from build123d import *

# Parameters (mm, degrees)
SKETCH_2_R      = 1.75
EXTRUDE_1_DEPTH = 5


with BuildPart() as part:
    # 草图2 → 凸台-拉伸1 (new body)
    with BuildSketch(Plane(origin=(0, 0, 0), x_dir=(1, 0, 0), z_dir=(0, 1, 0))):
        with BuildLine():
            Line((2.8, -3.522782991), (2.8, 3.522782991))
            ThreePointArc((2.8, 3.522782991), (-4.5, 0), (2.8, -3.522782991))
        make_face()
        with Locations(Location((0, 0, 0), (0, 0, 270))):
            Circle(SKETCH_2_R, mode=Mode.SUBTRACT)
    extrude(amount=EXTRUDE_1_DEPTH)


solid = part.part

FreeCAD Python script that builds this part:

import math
import FreeCAD as App
import Part
import Sketcher
Q = App.Units.Quantity

doc = App.newDocument("Part")
params = doc.addObject("Spreadsheet::Sheet", "Params")
for row, (alias, value) in enumerate([
    ("sketch1_diameter", "3.5 mm"),
    ("sketch1_radius", "4.5 mm"),
    ("pad1_length", "5 mm"),
], start=1):
    params.set(f"A{row}", alias)
    params.set(f"B{row}", "=" + value)
    params.setAlias(f"B{row}", alias)

body = doc.addObject("PartDesign::Body", "Body")

# Sketch on XZ plane
sketch1 = doc.addObject("Sketcher::SketchObject", "Sketch")
body.addObject(sketch1)
sketch1.AttachmentSupport = (doc.XZ_Plane, [""])
sketch1.MapMode = "FlatFace"
sketch1.addGeometry(Part.LineSegment(App.Vector(2.8, 3.5, 0), App.Vector(2.8, -3.5, 0)), False)
sketch1.addGeometry(Part.ArcOfCircle(Part.Circle(App.Vector(0, 0, 0), App.Vector(0, 0, 1), 4.5), math.radians(52), math.radians(308)), False)
sketch1.addGeometry(Part.Circle(App.Vector(0, 0, 0), App.Vector(0, 0, 1), 1.8), False)
sketch1.addConstraint(Sketcher.Constraint("Coincident", 0, 1, 1, 1))
sketch1.addConstraint(Sketcher.Constraint("Coincident", 1, 2, 0, 2))
sketch1.addConstraint(Sketcher.Constraint("Vertical", 0))
sketch1.addConstraint(Sketcher.Constraint("Coincident", 1, 3, -1, 1))
sketch1.addConstraint(Sketcher.Constraint("Coincident", 2, 3, -1, 1))
sketch1.addConstraint(Sketcher.Constraint("Diameter", 2, Q("3.5 mm")))
sketch1.addConstraint(Sketcher.Constraint("Radius", 1, Q("4.5 mm")))
sketch1.addConstraint(Sketcher.Constraint("DistanceX", -1, 1, 0, 1, Q("2.8 mm")))
sketch1.setExpression("Constraints[5]", "Params.sketch1_diameter")
sketch1.setExpression("Constraints[6]", "Params.sketch1_radius")
pad1 = doc.addObject("PartDesign::Pad", "Pad")
body.addObject(pad1)
pad1.Profile = sketch1
pad1.setExpression("Length", "Params.pad1_length")
pad1.Reversed = True

doc.recompute()
